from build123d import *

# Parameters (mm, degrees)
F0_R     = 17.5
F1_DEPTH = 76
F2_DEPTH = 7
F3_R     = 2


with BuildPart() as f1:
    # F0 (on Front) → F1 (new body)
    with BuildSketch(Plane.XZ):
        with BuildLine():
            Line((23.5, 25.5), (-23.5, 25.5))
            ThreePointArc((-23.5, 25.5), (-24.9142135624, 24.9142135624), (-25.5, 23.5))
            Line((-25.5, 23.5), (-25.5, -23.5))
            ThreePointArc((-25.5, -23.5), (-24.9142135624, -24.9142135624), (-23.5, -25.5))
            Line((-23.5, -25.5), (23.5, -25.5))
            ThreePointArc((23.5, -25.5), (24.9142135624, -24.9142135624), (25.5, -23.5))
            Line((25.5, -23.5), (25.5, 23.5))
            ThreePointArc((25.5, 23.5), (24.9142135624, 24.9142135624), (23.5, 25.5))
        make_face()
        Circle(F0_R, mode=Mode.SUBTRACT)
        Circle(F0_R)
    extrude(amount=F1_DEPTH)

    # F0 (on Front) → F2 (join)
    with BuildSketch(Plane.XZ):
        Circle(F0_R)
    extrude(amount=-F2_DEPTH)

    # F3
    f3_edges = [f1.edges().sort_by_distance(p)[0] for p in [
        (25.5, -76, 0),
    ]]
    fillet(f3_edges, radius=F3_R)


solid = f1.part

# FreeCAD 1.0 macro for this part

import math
import FreeCAD as App
import Part
import Sketcher
from FreeCAD import Vector


def edges_at(feature, points):
    """Names of the edges that pass closest to the given points."""
    edges = feature.Shape.Edges
    near = lambda p: min(range(len(edges)), key=lambda i: edges[i].distToShape(Part.Vertex(*p))[0])
    return sorted({f"Edge{near(p) + 1}" for p in points})

doc = App.newDocument("Part")
body = doc.addObject("PartDesign::Body", "Body")

# Sketch on XZ plane
sketch1 = body.newObject("Sketcher::SketchObject", "Sketch")
sketch1.AttachmentSupport = (doc.getObject("XZ_Plane"), [""])
sketch1.MapMode = "FlatFace"
sketch1.addGeometry([
    Part.LineSegment(Vector(23.5, 25.5, 0), Vector(-23.5, 25.5, 0)),  # 0
    Part.ArcOfCircle(Part.Circle(Vector(-23.5, 23.5, 0), Vector(0, 0, 1), 2), math.radians(90), math.radians(180)),  # 1
    Part.LineSegment(Vector(-25.5, 23.5, 0), Vector(-25.5, -23.5, 0)),  # 2
    Part.ArcOfCircle(Part.Circle(Vector(-23.5, -23.5, 0), Vector(0, 0, 1), 2), math.radians(180), math.radians(270)),  # 3
    Part.LineSegment(Vector(-23.5, -25.5, 0), Vector(23.5, -25.5, 0)),  # 4
    Part.ArcOfCircle(Part.Circle(Vector(23.5, -23.5, 0), Vector(0, 0, 1), 2), math.radians(-90), math.radians(0)),  # 5
    Part.LineSegment(Vector(25.5, -23.5, 0), Vector(25.5, 23.5, 0)),  # 6
    Part.ArcOfCircle(Part.Circle(Vector(23.5, 23.5, 0), Vector(0, 0, 1), 2), math.radians(0), math.radians(90)),  # 7
], False)
sketch1.addConstraint([
    Sketcher.Constraint("Tangent", 0, 2, 1, 1),
    Sketcher.Constraint("Tangent", 1, 2, 2, 1),
    Sketcher.Constraint("Tangent", 2, 2, 3, 1),
    Sketcher.Constraint("Tangent", 3, 2, 4, 1),
    Sketcher.Constraint("Tangent", 4, 2, 5, 1),
    Sketcher.Constraint("Tangent", 5, 2, 6, 1),
    Sketcher.Constraint("Tangent", 6, 2, 7, 1),
    Sketcher.Constraint("Tangent", 7, 2, 0, 1),
    Sketcher.Constraint("Horizontal", 0),
    Sketcher.Constraint("Vertical", 2),
    Sketcher.Constraint("Horizontal", 4),
    Sketcher.Constraint("Vertical", 6),
    Sketcher.Constraint("Equal", 1, 3),
    Sketcher.Constraint("Equal", 3, 5),
    Sketcher.Constraint("Equal", 5, 7),
    Sketcher.Constraint("Symmetric", 1, 3, 5, 3, -1, 1),
    Sketcher.Constraint("Equal", 4, 2),
    Sketcher.Constraint("Radius", 1, 2.0),
    Sketcher.Constraint("DistanceX", 0, 2, 0, 1, 47.0),
])
pad1 = body.newObject("PartDesign::Pad", "Pad")
pad1.Profile = sketch1
pad1.Length = 76

# Sketch on XZ plane
sketch2 = body.newObject("Sketcher::SketchObject", "Sketch001")
sketch2.AttachmentSupport = (doc.getObject("XZ_Plane"), [""])
sketch2.MapMode = "FlatFace"
sketch2.addGeometry(Part.Circle(Vector(0, 0, 0), Vector(0, 0, 1), 17.5), False)
sketch2.addConstraint([
    Sketcher.Constraint("Coincident", 0, 3, -1, 1),
    Sketcher.Constraint("Diameter", 0, 35.0),
])
pad2 = body.newObject("PartDesign::Pad", "Pad001")
pad2.Profile = sketch2
pad2.Length = 7
pad2.Reversed = True
doc.recompute()

fillet = body.newObject("PartDesign::Fillet", "Fillet")
fillet.Base = (pad2, edges_at(pad2, [(25.5, -76, 0)]))
fillet.Radius = 2

doc.recompute()
